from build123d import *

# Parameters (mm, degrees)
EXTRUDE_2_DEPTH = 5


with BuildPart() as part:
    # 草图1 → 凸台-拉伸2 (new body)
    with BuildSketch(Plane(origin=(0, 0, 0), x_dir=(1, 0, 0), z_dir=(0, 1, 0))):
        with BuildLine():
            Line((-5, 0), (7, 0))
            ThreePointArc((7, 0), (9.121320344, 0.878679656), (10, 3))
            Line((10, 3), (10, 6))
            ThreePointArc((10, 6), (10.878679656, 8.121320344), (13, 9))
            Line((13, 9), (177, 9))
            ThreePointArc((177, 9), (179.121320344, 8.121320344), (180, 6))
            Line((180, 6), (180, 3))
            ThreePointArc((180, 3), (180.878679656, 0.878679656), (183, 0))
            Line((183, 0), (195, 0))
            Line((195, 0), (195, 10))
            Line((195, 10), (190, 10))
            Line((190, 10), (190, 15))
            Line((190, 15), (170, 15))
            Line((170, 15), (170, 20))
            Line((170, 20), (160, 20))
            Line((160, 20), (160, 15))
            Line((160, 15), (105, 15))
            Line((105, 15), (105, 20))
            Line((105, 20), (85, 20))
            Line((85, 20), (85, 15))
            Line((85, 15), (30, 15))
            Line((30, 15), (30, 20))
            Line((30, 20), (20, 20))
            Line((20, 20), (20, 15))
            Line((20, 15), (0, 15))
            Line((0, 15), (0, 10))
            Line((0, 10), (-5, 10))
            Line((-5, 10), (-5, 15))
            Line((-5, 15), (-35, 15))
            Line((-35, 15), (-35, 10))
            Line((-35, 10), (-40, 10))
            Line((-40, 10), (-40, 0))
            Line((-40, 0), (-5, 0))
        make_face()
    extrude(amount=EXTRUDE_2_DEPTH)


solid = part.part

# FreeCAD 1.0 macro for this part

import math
import FreeCAD as App
import Part
import Sketcher
Q = App.Units.Quantity

doc = App.newDocument("Part")
body = doc.addObject("PartDesign::Body", "Body")

# Sketch on XZ plane
sketch1 = doc.addObject("Sketcher::SketchObject", "Sketch")
body.addObject(sketch1)
sketch1.AttachmentSupport = (doc.XZ_Plane, [""])
sketch1.MapMode = "FlatFace"
sketch1.addGeometry([
    Part.ArcOfCircle(Part.Circle(App.Vector(7, -3, 0), App.Vector(0, 0, 1), 3), math.radians(0), math.radians(90)),  # 0
    Part.LineSegment(App.Vector(10, -3, 0), App.Vector(10, -6, 0)),  # 1
    Part.ArcOfCircle(Part.Circle(App.Vector(13, -6, 0), App.Vector(0, 0, 1), 3), math.radians(180), math.radians(270)),  # 2
    Part.LineSegment(App.Vector(13, -9, 0), App.Vector(177, -9, 0)),  # 3
    Part.ArcOfCircle(Part.Circle(App.Vector(177, -6, 0), App.Vector(0, 0, 1), 3), math.radians(-90), math.radians(0)),  # 4
    Part.LineSegment(App.Vector(180, -6, 0), App.Vector(180, -3, 0)),  # 5
    Part.ArcOfCircle(Part.Circle(App.Vector(183, -3, 0), App.Vector(0, 0, 1), 3), math.radians(90), math.radians(180)),  # 6
    Part.LineSegment(App.Vector(183, 0, 0), App.Vector(195, 0, 0)),  # 7
    Part.LineSegment(App.Vector(195, 0, 0), App.Vector(195, -10, 0)),  # 8
    Part.LineSegment(App.Vector(195, -10, 0), App.Vector(190, -10, 0)),  # 9
    Part.LineSegment(App.Vector(190, -10, 0), App.Vector(190, -15, 0)),  # 10
    Part.LineSegment(App.Vector(190, -15, 0), App.Vector(170, -15, 0)),  # 11
    Part.LineSegment(App.Vector(170, -15, 0), App.Vector(170, -20, 0)),  # 12
    Part.LineSegment(App.Vector(170, -20, 0), App.Vector(160, -20, 0)),  # 13
    Part.LineSegment(App.Vector(160, -20, 0), App.Vector(160, -15, 0)),  # 14
    Part.LineSegment(App.Vector(160, -15, 0), App.Vector(105, -15, 0)),  # 15
    Part.LineSegment(App.Vector(105, -15, 0), App.Vector(105, -20, 0)),  # 16
    Part.LineSegment(App.Vector(105, -20, 0), App.Vector(85, -20, 0)),  # 17
    Part.LineSegment(App.Vector(85, -20, 0), App.Vector(85, -15, 0)),  # 18
    Part.LineSegment(App.Vector(85, -15, 0), App.Vector(30, -15, 0)),  # 19
    Part.LineSegment(App.Vector(30, -15, 0), App.Vector(30, -20, 0)),  # 20
    Part.LineSegment(App.Vector(30, -20, 0), App.Vector(20, -20, 0)),  # 21
    Part.LineSegment(App.Vector(20, -20, 0), App.Vector(20, -15, 0)),  # 22
    Part.LineSegment(App.Vector(20, -15, 0), App.Vector(0, -15, 0)),  # 23
    Part.LineSegment(App.Vector(0, -15, 0), App.Vector(0, -10, 0)),  # 24
    Part.LineSegment(App.Vector(0, -10, 0), App.Vector(-5, -10, 0)),  # 25
    Part.LineSegment(App.Vector(-5, -10, 0), App.Vector(-5, -15, 0)),  # 26
    Part.LineSegment(App.Vector(-5, -15, 0), App.Vector(-35, -15, 0)),  # 27
    Part.LineSegment(App.Vector(-35, -15, 0), App.Vector(-35, -10, 0)),  # 28
    Part.LineSegment(App.Vector(-35, -10, 0), App.Vector(-40, -10, 0)),  # 29
    Part.LineSegment(App.Vector(-40, -10, 0), App.Vector(-40, 0, 0)),  # 30
    Part.LineSegment(App.Vector(-40, 0, 0), App.Vector(7, 0, 0)),  # 31
], False)
sketch1.addConstraint([
    Sketcher.Constraint("Tangent", 0, 1, 1, 1),
    Sketcher.Constraint("Tangent", 1, 2, 2, 1),
    Sketcher.Constraint("Tangent", 2, 2, 3, 1),
    Sketcher.Constraint("Tangent", 3, 2, 4, 1),
    Sketcher.Constraint("Tangent", 4, 2, 5, 1),
    Sketcher.Constraint("Tangent", 5, 2, 6, 2),
    Sketcher.Constraint("Tangent", 6, 1, 7, 1),
    Sketcher.Constraint("Coincident", 7, 2, 8, 1),
    Sketcher.Constraint("Coincident", 8, 2, 9, 1),
    Sketcher.Constraint("Coincident", 9, 2, 10, 1),
    Sketcher.Constraint("Coincident", 10, 2, 11, 1),
    Sketcher.Constraint("Coincident", 11, 2, 12, 1),
    Sketcher.Constraint("Coincident", 12, 2, 13, 1),
    Sketcher.Constraint("Coincident", 13, 2, 14, 1),
    Sketcher.Constraint("Coincident", 14, 2, 15, 1),
    Sketcher.Constraint("Coincident", 15, 2, 16, 1),
    Sketcher.Constraint("Coincident", 16, 2, 17, 1),
    Sketcher.Constraint("Coincident", 17, 2, 18, 1),
    Sketcher.Constraint("Coincident", 18, 2, 19, 1),
    Sketcher.Constraint("Coincident", 19, 2, 20, 1),
    Sketcher.Constraint("Coincident", 20, 2, 21, 1),
    Sketcher.Constraint("Coincident", 21, 2, 22, 1),
    Sketcher.Constraint("Coincident", 22, 2, 23, 1),
    Sketcher.Constraint("Coincident", 23, 2, 24, 1),
    Sketcher.Constraint("Coincident", 24, 2, 25, 1),
    Sketcher.Constraint("Coincident", 25, 2, 26, 1),
    Sketcher.Constraint("Coincident", 26, 2, 27, 1),
    Sketcher.Constraint("Coincident", 27, 2, 28, 1),
    Sketcher.Constraint("Coincident", 28, 2, 29, 1),
    Sketcher.Constraint("Coincident", 29, 2, 30, 1),
    Sketcher.Constraint("Coincident", 30, 2, 31, 1),
    Sketcher.Constraint("Tangent", 31, 2, 0, 2),
    Sketcher.Constraint("Vertical", 1),
    Sketcher.Constraint("Horizontal", 3),
    Sketcher.Constraint("Vertical", 5),
    Sketcher.Constraint("Horizontal", 7),
    Sketcher.Constraint("Vertical", 8),
    Sketcher.Constraint("Horizontal", 9),
    Sketcher.Constraint("Vertical", 10),
    Sketcher.Constraint("Horizontal", 11),
    Sketcher.Constraint("Vertical", 12),
    Sketcher.Constraint("Horizontal", 13),
    Sketcher.Constraint("Vertical", 14),
    Sketcher.Constraint("Horizontal", 15),
    Sketcher.Constraint("Vertical", 16),
    Sketcher.Constraint("Horizontal", 17),
    Sketcher.Constraint("Vertical", 18),
    Sketcher.Constraint("Horizontal", 19),
    Sketcher.Constraint("Vertical", 20),
    Sketcher.Constraint("Horizontal", 21),
    Sketcher.Constraint("Vertical", 22),
    Sketcher.Constraint("Horizontal", 23),
    Sketcher.Constraint("Vertical", 24),
    Sketcher.Constraint("Horizontal", 25),
    Sketcher.Constraint("Vertical", 26),
    Sketcher.Constraint("Horizontal", 27),
    Sketcher.Constraint("Vertical", 28),
    Sketcher.Constraint("Horizontal", 29),
    Sketcher.Constraint("Vertical", 30),
    Sketcher.Constraint("Horizontal", 31),
    Sketcher.Constraint("Equal", 0, 2),
    Sketcher.Constraint("Equal", 2, 4),
    Sketcher.Constraint("Equal", 4, 6),
    Sketcher.Constraint("PointOnObject", 6, 1, -1),
    Sketcher.Constraint("PointOnObject", 23, 2, -2),
    Sketcher.Constraint("PointOnObject", 30, 2, -1),
    Sketcher.Constraint("Horizontal", 11, 2, 14, 2),
    Sketcher.Constraint("Horizontal", 13, 2, 16, 2),
    Sketcher.Constraint("Horizontal", 15, 2, 18, 2),
    Sketcher.Constraint("Horizontal", 17, 2, 20, 2),
    Sketcher.Constraint("Horizontal", 19, 2, 22, 2),
    Sketcher.Constraint("Horizontal", 9, 2, 24, 2),
    Sketcher.Constraint("Horizontal", 23, 2, 26, 2),
    Sketcher.Constraint("Horizontal", 25, 2, 28, 2),
    Sketcher.Constraint("Equal", 11, 17),
    Sketcher.Constraint("Equal", 15, 19),
    Sketcher.Constraint("Equal", 13, 21),
    Sketcher.Constraint("Equal", 17, 23),
    Sketcher.Constraint("Equal", 9, 25),
    Sketcher.Constraint("Equal", 25, 29),
    Sketcher.Constraint("Equal", 21, 8),
    Sketcher.Constraint("Equal", 29, 10),
    Sketcher.Constraint("Equal", 10, 12),
    Sketcher.Constraint("Radius", 0, Q("3 mm")),
    Sketcher.Constraint("DistanceX", 3, 1, 3, 2, Q("164 mm")),
    Sketcher.Constraint("DistanceX", 7, 1, 7, 2, Q("12 mm")),
    Sketcher.Constraint("DistanceX", 9, 2, 9, 1, Q("5 mm")),
    Sketcher.Constraint("DistanceX", 11, 2, 11, 1, Q("20 mm")),
    Sketcher.Constraint("DistanceX", 13, 2, 13, 1, Q("10 mm")),
    Sketcher.Constraint("DistanceX", 15, 2, 15, 1, Q("55 mm")),
    Sketcher.Constraint("DistanceX", 27, 2, 27, 1, Q("30 mm")),
    Sketcher.Constraint("DistanceY", 1, 2, 1, 1, Q("3 mm")),
])
pad1 = doc.addObject("PartDesign::Pad", "Pad")
body.addObject(pad1)
pad1.Profile = sketch1
pad1.Length = 5
pad1.Reversed = True

doc.recompute()
